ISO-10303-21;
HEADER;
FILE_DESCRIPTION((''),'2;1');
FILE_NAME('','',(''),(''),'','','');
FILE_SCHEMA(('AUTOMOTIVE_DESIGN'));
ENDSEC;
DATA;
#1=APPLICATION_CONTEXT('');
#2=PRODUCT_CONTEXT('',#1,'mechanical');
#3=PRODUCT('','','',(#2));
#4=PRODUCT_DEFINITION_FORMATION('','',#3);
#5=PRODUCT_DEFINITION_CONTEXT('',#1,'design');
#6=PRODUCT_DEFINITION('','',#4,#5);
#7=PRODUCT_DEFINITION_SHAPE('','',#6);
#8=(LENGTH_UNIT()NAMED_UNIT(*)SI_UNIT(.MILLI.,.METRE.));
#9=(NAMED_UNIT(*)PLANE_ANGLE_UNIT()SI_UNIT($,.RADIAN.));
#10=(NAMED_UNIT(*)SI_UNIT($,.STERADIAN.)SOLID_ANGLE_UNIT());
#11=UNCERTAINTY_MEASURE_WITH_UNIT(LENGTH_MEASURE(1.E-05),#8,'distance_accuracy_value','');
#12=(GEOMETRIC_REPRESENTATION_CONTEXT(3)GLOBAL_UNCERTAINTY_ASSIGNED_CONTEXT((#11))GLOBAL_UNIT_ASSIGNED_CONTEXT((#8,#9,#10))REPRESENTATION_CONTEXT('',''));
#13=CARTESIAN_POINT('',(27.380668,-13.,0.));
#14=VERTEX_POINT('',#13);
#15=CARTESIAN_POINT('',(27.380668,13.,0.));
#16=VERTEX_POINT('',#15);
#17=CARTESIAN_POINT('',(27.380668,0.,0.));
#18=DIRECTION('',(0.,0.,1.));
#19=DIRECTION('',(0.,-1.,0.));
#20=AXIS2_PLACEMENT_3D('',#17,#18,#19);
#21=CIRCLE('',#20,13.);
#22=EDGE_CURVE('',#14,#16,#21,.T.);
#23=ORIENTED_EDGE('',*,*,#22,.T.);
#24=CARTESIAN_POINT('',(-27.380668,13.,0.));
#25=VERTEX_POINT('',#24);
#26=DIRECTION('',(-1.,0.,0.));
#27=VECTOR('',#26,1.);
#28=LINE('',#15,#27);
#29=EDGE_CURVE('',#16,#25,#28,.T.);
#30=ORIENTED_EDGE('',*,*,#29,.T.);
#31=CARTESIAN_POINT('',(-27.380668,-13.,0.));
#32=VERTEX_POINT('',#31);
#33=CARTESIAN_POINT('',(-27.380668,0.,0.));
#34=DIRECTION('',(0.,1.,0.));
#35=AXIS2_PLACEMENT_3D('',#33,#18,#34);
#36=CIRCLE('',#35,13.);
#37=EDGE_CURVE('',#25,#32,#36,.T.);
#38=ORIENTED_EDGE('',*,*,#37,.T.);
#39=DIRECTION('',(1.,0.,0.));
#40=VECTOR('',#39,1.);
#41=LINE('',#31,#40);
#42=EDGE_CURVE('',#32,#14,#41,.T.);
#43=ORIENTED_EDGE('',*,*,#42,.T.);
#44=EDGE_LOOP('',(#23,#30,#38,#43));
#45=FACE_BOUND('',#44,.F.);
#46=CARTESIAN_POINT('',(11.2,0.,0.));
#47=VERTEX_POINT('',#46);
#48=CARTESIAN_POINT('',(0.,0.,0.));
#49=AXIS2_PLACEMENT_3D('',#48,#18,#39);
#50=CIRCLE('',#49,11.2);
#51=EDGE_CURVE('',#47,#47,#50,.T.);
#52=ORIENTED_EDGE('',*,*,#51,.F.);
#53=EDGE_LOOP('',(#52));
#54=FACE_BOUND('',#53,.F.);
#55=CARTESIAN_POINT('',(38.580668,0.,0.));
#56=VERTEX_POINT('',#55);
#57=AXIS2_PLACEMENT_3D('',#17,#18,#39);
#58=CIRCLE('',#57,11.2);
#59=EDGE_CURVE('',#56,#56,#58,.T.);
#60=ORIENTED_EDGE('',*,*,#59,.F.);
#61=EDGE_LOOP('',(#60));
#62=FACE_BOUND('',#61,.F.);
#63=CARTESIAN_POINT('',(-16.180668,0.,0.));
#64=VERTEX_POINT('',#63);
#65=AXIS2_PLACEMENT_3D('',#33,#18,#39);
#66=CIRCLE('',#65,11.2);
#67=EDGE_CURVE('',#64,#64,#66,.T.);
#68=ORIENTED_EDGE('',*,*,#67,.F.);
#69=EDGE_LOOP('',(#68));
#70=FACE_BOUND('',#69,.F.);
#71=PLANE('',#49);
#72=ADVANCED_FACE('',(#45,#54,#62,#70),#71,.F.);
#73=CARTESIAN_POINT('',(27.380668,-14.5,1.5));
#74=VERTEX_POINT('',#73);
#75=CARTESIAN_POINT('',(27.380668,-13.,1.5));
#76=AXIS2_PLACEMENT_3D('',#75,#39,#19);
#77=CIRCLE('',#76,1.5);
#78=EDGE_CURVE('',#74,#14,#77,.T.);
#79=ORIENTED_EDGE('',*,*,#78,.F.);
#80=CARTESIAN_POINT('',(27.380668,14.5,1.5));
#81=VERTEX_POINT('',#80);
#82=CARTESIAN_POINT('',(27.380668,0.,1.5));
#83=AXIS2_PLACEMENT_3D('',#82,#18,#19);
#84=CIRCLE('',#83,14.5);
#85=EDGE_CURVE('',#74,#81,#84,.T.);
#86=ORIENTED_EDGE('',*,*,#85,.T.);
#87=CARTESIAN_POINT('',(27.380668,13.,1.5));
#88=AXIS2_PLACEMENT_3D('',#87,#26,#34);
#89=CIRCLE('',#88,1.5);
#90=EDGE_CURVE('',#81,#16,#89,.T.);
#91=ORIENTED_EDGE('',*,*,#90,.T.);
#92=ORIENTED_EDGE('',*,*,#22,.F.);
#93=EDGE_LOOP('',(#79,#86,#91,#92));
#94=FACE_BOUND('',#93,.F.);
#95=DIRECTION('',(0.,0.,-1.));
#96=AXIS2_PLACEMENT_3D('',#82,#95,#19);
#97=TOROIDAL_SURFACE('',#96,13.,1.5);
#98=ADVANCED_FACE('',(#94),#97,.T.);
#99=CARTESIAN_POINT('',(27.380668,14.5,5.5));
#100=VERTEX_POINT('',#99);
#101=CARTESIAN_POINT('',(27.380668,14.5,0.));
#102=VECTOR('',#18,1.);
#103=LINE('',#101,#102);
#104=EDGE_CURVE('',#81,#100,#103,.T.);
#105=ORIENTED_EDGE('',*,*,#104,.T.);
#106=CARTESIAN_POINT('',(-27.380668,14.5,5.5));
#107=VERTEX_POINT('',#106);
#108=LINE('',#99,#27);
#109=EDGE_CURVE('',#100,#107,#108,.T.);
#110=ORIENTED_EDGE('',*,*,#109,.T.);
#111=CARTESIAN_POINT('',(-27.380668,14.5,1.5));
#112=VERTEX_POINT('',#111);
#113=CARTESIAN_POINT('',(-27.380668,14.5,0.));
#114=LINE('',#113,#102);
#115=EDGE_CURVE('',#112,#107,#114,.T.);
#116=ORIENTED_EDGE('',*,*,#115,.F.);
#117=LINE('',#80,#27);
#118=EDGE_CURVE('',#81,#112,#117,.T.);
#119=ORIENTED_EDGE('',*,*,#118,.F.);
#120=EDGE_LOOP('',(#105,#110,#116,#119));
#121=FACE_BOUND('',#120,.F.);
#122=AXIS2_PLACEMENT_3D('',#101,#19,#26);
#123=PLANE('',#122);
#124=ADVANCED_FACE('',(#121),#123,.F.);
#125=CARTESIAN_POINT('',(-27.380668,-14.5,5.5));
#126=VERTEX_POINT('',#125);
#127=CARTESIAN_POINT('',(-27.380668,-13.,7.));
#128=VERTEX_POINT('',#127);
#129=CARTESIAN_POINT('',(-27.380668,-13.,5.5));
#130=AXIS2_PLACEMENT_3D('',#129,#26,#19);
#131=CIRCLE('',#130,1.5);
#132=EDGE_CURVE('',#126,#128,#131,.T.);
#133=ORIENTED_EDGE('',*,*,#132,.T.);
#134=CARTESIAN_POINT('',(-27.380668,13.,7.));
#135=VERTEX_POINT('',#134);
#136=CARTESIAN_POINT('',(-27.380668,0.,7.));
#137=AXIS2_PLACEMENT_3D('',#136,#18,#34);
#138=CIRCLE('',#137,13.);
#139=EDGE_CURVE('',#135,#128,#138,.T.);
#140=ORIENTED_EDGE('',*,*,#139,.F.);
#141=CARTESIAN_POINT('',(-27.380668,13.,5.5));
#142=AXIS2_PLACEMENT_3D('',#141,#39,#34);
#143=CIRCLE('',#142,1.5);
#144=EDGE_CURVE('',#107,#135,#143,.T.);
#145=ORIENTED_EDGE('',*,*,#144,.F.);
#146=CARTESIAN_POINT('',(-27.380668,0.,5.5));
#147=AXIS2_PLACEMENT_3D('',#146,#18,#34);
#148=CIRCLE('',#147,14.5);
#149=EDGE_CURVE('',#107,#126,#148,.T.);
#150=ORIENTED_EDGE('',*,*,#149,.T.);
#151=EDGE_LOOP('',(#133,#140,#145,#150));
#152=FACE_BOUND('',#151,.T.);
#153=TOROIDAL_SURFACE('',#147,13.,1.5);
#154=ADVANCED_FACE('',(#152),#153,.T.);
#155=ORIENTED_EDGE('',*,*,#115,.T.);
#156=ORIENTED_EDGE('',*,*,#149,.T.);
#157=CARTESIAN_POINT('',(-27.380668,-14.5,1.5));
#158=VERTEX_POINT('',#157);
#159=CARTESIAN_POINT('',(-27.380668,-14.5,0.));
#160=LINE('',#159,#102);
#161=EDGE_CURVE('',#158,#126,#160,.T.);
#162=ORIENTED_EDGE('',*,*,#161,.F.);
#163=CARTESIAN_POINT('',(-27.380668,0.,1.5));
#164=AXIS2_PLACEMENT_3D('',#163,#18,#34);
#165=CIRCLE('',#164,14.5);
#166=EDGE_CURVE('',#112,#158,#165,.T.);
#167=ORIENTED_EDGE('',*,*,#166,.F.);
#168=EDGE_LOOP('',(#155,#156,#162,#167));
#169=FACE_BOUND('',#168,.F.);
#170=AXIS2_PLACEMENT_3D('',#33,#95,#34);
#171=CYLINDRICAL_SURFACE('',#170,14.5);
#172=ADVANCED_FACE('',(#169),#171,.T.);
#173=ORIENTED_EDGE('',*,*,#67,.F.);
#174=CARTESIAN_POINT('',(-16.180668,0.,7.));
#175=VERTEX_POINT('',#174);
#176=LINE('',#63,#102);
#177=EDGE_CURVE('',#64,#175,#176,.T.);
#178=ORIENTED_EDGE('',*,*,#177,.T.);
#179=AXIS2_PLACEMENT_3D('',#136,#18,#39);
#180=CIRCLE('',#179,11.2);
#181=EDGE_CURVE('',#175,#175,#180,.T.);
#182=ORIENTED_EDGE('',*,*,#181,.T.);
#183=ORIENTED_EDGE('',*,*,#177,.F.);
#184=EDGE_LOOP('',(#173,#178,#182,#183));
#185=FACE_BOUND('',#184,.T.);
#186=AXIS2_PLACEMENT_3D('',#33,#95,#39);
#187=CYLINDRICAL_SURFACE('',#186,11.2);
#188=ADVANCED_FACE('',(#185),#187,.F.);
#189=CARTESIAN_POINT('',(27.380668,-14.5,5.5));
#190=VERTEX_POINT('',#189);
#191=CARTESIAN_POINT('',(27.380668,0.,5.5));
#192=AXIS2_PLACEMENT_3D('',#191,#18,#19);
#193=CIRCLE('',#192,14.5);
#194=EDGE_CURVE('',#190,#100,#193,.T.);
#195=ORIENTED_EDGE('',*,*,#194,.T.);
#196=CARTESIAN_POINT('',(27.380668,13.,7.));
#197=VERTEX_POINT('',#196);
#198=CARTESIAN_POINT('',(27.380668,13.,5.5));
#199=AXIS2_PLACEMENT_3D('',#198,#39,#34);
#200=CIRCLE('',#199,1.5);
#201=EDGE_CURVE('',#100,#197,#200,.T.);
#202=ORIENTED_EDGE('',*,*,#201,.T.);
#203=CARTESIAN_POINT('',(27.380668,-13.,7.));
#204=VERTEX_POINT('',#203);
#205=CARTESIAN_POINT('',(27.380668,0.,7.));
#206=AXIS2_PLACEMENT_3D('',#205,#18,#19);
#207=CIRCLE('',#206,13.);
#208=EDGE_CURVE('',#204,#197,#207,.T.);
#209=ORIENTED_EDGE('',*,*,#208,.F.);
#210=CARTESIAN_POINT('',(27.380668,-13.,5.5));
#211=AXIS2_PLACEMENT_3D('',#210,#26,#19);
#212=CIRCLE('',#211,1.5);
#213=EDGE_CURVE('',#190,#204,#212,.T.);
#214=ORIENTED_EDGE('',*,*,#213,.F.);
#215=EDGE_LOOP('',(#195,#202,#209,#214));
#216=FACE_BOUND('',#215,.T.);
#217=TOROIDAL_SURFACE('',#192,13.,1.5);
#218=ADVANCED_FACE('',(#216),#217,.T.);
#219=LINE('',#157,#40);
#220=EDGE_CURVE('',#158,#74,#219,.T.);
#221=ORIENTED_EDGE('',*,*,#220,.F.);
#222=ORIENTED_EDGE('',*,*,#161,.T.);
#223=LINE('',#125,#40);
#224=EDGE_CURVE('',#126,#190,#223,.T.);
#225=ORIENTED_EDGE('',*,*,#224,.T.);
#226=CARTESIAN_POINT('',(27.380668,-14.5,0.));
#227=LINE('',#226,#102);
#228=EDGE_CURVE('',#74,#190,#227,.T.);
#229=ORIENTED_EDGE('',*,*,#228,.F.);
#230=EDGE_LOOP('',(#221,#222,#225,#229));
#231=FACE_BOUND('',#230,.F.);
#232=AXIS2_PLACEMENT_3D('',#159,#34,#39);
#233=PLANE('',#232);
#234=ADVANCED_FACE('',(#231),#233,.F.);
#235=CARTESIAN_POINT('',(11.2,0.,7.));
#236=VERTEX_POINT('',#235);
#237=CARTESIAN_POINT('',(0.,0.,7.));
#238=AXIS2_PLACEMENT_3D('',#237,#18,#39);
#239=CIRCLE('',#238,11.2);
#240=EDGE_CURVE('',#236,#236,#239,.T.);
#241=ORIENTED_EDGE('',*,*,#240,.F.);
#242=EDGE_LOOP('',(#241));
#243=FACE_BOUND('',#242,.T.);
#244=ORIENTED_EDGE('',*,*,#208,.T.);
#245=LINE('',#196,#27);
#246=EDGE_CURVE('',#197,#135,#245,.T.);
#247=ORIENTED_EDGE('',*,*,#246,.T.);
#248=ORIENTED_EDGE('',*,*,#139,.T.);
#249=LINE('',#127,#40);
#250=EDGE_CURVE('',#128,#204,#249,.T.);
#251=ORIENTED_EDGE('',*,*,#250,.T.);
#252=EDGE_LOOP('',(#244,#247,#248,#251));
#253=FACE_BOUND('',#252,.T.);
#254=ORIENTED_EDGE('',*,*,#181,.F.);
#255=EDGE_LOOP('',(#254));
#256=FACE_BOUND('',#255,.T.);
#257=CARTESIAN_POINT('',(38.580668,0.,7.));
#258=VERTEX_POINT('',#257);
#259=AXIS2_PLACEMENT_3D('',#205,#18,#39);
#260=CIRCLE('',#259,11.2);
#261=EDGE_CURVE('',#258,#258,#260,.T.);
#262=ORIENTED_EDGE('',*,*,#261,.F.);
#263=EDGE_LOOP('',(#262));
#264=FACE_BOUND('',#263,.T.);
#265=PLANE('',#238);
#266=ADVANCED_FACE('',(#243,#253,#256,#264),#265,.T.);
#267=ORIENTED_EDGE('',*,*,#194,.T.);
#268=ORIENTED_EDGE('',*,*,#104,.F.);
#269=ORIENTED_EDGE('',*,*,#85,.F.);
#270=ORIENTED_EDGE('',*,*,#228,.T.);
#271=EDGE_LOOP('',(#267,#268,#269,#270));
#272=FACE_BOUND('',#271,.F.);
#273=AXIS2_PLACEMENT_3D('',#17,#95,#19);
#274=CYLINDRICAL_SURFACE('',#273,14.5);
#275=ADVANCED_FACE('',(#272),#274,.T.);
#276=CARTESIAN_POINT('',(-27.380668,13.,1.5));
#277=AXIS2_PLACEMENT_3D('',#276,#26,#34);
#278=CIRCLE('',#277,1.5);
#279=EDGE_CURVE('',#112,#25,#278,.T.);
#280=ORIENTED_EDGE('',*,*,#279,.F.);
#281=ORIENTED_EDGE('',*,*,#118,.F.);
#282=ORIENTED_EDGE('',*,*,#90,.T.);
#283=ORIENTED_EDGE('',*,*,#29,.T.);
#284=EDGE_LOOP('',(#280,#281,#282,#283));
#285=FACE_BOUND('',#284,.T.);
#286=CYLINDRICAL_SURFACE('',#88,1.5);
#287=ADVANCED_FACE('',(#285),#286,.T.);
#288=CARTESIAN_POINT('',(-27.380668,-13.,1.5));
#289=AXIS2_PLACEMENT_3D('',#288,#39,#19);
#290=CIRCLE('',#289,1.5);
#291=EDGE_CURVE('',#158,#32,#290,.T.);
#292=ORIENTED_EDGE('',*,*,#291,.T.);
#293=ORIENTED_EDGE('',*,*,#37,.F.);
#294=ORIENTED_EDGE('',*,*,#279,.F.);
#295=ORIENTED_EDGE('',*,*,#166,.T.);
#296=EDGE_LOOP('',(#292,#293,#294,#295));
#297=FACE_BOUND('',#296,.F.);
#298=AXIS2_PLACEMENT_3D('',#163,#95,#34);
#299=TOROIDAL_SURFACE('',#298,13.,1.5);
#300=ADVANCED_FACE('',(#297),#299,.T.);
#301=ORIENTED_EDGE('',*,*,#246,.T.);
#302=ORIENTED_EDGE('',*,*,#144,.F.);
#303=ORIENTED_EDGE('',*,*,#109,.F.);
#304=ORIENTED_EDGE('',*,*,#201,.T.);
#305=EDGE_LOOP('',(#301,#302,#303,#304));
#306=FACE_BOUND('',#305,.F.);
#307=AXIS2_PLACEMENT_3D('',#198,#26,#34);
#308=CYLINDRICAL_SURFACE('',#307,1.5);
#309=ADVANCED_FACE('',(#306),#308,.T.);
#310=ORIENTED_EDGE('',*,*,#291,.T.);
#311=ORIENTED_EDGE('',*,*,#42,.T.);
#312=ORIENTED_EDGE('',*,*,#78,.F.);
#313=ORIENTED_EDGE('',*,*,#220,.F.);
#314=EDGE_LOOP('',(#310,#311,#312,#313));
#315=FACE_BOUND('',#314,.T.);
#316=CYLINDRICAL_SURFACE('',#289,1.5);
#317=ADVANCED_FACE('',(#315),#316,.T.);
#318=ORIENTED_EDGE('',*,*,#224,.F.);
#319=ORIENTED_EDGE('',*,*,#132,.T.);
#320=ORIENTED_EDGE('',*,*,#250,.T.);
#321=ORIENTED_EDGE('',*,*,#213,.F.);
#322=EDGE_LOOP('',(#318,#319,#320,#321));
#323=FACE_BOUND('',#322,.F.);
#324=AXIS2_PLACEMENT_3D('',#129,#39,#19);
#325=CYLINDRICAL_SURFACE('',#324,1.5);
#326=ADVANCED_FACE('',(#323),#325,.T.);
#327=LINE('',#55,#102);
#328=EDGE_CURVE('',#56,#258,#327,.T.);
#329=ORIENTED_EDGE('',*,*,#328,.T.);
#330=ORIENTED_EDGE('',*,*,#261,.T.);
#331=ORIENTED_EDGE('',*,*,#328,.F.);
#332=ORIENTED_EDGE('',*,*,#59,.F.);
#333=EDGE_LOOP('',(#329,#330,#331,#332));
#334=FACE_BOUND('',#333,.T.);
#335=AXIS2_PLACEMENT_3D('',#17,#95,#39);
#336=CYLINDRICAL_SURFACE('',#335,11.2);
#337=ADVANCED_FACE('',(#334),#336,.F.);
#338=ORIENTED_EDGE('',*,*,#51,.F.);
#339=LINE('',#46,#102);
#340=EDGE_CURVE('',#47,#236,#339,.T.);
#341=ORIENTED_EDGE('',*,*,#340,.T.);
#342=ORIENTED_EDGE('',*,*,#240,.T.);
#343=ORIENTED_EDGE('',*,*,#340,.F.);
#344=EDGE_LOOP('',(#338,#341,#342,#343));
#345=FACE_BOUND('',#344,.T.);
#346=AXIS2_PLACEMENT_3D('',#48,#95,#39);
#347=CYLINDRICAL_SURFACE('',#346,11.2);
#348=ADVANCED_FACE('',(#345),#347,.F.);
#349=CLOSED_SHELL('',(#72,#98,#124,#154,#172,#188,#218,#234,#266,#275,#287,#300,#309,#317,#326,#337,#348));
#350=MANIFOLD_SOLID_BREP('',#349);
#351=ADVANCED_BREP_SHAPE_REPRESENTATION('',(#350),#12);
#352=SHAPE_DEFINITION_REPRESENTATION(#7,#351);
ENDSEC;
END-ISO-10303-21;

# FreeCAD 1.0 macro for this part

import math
import FreeCAD as App
import Part
import Sketcher

V = App.Vector
Q = App.Units.Quantity


def edges_at(feature, points):
    """Names of the edges that pass closest to the given points."""
    edges = feature.Shape.Edges
    near = lambda p: min(range(len(edges)), key=lambda i: edges[i].distToShape(Part.Vertex(*p))[0])
    return sorted({f"Edge{near(p) + 1}" for p in points})

doc = App.newDocument("Part")
body = doc.addObject("PartDesign::Body", "Body")

# Sketch on XY plane
sketch1 = body.newObject("Sketcher::SketchObject", "Sketch")
sketch1.AttachmentSupport = (doc.getObject("XY_Plane"), [""])
sketch1.MapMode = "FlatFace"
sketch1.addGeometry([
    Part.LineSegment(V(-27, -14, 0), V(27, -14, 0)),  # 0
    Part.ArcOfCircle(Part.Circle(V(27, 0, 0), V(0, 0, 1), 14), math.radians(-90), math.radians(90)),  # 1
    Part.LineSegment(V(27, 14, 0), V(-27, 14, 0)),  # 2
    Part.ArcOfCircle(Part.Circle(V(-27, 0, 0), V(0, 0, 1), 14), math.radians(90), math.radians(270)),  # 3
    Part.Circle(V(-27, 0, 0), V(0, 0, 1), 11),  # 4
    Part.Circle(V(0, 0, 0), V(0, 0, 1), 11),  # 5
    Part.Circle(V(27, 0, 0), V(0, 0, 1), 11),  # 6
], False)
sketch1.addConstraint([
    Sketcher.Constraint("Tangent", 0, 2, 1, 1),
    Sketcher.Constraint("Tangent", 1, 2, 2, 1),
    Sketcher.Constraint("Tangent", 2, 2, 3, 1),
    Sketcher.Constraint("Tangent", 3, 2, 0, 1),
    Sketcher.Constraint("Horizontal", 0),
    Sketcher.Constraint("Horizontal", 2),
    Sketcher.Constraint("Coincident", 5, 3, -1, 1),
    Sketcher.Constraint("Coincident", 4, 3, 3, 3),
    Sketcher.Constraint("Coincident", 6, 3, 1, 3),
    Sketcher.Constraint("Equal", 4, 5),
    Sketcher.Constraint("Equal", 5, 6),
    Sketcher.Constraint("Symmetric", 1, 3, 3, 3, -1, 1),
    Sketcher.Constraint("Diameter", 4, Q("22.4 mm")),
    Sketcher.Constraint("Radius", 1, Q("14.5 mm")),
    Sketcher.Constraint("DistanceX", 0, 1, 0, 2, Q("54.761336 mm")),
])
pad1 = body.newObject("PartDesign::Pad", "Pad")
pad1.Profile = sketch1
pad1.Length = 7
doc.recompute()

fillet = body.newObject("PartDesign::Fillet", "Fillet")
fillet.Base = (pad1, edges_at(pad1, [(0, -14.5, 7), (0, -14.5, 0)]))
fillet.Radius = 1.5

doc.recompute()
